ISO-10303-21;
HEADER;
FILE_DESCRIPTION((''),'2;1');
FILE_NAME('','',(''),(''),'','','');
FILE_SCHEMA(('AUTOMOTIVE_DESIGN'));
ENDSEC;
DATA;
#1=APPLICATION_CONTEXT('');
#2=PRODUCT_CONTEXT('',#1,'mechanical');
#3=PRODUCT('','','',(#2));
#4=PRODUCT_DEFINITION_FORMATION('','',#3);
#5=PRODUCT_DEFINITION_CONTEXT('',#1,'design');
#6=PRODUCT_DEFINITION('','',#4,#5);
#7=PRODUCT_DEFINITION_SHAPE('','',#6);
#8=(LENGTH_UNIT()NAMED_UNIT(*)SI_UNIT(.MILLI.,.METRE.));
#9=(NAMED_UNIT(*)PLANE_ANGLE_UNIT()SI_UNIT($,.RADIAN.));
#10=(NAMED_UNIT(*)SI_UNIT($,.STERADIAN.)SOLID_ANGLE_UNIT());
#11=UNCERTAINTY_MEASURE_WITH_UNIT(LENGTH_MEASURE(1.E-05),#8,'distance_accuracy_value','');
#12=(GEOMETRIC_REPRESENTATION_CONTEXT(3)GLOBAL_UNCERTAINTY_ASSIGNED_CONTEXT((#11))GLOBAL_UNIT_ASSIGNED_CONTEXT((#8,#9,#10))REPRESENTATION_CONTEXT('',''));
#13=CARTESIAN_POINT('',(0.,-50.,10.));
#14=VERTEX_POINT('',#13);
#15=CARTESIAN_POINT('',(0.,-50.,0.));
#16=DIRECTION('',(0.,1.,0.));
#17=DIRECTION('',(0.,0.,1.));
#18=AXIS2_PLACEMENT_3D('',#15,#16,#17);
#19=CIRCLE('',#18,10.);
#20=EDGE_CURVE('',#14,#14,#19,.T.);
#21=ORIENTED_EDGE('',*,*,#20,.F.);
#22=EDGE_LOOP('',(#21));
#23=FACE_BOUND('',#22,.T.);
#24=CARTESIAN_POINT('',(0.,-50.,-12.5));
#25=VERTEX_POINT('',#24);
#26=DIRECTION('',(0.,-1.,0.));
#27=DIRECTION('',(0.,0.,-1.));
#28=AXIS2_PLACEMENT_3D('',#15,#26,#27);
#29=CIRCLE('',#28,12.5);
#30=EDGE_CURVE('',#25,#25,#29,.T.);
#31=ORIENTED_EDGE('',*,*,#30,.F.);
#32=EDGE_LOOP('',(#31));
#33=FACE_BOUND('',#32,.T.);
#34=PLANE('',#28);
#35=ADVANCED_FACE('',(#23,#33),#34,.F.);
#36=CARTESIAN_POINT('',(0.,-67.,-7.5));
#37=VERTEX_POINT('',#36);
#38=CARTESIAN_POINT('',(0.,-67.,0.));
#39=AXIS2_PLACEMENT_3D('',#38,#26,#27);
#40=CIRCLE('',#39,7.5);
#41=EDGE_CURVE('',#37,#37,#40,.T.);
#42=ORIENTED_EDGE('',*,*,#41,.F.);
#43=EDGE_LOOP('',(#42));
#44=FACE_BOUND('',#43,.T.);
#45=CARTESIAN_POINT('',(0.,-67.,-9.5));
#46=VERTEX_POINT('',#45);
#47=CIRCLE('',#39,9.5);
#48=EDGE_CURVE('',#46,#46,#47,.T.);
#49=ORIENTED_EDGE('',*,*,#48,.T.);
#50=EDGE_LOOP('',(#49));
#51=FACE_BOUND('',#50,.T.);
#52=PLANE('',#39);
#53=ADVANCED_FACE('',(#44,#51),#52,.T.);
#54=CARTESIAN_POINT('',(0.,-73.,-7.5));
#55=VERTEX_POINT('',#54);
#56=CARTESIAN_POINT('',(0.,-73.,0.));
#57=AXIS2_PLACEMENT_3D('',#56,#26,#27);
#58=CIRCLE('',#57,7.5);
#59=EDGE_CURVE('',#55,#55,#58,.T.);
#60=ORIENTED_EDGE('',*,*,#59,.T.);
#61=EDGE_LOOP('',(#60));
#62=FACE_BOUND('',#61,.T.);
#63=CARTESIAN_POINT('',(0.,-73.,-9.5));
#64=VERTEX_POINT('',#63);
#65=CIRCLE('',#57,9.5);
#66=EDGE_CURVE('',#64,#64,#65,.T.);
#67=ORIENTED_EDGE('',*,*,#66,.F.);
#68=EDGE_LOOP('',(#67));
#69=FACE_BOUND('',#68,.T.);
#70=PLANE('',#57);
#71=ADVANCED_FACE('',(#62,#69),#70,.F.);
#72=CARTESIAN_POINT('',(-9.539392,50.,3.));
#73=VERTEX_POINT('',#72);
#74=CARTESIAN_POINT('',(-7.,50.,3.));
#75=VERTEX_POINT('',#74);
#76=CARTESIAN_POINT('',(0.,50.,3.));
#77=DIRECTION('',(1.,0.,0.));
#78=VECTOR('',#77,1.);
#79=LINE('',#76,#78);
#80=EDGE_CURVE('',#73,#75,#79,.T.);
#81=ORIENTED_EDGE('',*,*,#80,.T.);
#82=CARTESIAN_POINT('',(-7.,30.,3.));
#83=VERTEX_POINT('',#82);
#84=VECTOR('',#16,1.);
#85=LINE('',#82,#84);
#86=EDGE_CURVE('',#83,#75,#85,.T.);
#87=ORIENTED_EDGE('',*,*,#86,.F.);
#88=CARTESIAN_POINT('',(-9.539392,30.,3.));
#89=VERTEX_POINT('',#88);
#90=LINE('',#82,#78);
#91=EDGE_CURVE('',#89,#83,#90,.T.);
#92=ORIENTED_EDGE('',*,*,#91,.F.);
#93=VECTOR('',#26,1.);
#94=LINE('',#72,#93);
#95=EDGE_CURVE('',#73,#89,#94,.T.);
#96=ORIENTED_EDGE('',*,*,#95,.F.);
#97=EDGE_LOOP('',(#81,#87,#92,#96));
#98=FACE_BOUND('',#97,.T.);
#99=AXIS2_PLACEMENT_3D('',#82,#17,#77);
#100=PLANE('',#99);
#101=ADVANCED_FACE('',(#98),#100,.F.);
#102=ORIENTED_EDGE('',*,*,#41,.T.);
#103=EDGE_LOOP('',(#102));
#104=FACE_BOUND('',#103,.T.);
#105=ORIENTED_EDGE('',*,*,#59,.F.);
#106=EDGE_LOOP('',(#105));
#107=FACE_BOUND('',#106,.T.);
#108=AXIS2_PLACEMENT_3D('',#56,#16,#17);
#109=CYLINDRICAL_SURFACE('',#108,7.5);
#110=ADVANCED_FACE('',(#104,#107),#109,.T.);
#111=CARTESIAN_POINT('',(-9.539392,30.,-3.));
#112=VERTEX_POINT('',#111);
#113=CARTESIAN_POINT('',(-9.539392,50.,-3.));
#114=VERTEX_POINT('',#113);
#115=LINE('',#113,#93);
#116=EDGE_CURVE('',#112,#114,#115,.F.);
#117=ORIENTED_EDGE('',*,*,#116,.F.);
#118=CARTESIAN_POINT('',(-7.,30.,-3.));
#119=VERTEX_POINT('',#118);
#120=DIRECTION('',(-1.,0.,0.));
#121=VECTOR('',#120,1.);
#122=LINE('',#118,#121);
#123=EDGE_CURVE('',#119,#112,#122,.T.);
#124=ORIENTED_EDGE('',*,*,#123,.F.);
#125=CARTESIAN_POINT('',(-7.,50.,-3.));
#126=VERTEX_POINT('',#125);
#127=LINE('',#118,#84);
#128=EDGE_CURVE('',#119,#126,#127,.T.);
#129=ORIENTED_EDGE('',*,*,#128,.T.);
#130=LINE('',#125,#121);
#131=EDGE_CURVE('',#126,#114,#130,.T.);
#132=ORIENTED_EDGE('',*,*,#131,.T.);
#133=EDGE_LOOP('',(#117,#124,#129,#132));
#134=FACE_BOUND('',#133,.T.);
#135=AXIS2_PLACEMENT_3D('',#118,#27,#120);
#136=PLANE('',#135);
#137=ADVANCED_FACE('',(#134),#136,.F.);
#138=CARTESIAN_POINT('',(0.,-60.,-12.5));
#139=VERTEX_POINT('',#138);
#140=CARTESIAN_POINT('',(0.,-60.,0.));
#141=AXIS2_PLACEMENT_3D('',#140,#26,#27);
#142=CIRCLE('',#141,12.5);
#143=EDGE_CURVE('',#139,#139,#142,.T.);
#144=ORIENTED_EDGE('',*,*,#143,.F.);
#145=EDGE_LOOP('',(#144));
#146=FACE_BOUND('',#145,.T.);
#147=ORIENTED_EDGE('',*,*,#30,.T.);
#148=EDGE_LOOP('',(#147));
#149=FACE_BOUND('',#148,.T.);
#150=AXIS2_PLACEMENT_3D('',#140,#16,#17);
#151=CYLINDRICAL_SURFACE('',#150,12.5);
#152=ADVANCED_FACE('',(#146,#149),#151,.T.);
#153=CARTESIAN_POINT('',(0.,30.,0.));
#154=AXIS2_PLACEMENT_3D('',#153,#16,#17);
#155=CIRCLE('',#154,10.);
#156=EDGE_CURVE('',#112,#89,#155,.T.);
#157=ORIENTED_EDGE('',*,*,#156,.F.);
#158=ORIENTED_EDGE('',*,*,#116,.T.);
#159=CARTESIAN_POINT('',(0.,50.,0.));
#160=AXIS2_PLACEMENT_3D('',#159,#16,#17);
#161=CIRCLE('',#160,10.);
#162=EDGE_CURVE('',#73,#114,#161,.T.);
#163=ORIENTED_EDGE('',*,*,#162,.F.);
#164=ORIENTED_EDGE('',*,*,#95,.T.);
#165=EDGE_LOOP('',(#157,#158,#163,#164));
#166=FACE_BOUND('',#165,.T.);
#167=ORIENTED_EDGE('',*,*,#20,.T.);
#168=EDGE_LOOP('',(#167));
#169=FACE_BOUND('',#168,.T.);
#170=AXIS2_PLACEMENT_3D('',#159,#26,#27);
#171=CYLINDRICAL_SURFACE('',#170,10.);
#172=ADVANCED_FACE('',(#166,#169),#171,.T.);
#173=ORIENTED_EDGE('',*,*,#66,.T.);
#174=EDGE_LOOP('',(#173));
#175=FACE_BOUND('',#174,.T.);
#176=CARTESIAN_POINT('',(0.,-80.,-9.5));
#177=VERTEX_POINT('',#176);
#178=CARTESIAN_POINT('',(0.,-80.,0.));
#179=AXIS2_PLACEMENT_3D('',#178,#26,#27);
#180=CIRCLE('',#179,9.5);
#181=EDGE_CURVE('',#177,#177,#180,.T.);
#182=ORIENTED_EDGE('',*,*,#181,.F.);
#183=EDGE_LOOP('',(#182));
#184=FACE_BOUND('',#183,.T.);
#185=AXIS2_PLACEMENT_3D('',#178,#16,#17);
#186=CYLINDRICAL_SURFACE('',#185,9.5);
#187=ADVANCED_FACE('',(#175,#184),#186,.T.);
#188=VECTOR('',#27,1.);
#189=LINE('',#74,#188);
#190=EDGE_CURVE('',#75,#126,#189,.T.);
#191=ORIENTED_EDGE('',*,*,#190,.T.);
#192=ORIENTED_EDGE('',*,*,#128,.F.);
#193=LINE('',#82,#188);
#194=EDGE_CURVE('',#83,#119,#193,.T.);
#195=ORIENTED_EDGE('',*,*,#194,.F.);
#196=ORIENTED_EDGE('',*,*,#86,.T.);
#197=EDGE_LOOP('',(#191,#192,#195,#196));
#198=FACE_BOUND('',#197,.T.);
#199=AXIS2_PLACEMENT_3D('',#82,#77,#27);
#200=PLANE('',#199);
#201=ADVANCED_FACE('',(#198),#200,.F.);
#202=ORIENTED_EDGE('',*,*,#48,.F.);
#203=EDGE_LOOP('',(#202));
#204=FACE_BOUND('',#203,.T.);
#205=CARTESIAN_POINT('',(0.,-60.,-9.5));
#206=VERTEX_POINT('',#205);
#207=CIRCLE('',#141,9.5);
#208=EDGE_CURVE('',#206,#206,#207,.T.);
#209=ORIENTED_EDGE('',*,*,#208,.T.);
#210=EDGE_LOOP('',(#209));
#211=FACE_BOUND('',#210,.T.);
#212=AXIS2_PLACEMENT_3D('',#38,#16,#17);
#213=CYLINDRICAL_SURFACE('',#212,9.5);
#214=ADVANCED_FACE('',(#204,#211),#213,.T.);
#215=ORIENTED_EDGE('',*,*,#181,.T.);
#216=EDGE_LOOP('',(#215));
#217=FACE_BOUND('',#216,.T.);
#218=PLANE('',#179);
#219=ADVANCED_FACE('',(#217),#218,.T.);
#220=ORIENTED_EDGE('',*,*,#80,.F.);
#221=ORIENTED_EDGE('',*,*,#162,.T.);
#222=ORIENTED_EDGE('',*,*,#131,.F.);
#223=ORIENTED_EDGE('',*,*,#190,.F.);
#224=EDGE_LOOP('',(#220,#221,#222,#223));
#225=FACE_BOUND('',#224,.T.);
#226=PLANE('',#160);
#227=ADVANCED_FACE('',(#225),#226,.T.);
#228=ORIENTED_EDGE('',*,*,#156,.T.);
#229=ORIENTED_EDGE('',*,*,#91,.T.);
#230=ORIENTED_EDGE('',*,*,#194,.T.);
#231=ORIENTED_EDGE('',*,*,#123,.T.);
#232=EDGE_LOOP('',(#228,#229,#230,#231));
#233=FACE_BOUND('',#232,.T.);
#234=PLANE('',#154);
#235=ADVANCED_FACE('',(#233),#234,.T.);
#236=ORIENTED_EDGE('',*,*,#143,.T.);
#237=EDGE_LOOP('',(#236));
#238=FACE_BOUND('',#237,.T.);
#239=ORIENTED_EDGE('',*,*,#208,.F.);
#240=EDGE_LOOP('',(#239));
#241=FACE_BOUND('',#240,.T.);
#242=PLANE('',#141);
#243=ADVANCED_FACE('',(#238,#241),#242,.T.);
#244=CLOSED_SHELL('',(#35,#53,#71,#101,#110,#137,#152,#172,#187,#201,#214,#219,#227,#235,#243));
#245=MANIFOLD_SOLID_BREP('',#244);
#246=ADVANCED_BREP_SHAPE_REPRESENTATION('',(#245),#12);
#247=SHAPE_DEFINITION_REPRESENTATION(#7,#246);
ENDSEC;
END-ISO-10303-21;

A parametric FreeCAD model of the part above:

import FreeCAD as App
import Part
import Sketcher
Q = App.Units.Quantity

doc = App.newDocument("Part")
body = doc.addObject("PartDesign::Body", "Body")

sketch1 = body.newObject("Sketcher::SketchObject", "Sketch")
sketch1.AttachmentSupport = (doc.getObject("XZ_Plane"), [""])
sketch1.MapMode = "FlatFace"
sketch1.addGeometry(Part.Circle(App.Vector(0, 0, 0), App.Vector(0, 0, 1), 10), False)
sketch1.addConstraint([
    Sketcher.Constraint("Coincident", 0, 3, -1, 1),
    Sketcher.Constraint("Diameter", 0, Q("20 mm")),
])
pad1 = body.newObject("PartDesign::Pad", "Pad")
pad1.Profile = sketch1
pad1.Length = 100
pad1.Midplane = True

sketch2 = body.newObject("Sketcher::SketchObject", "Sketch001")
sketch2.AttachmentSupport = (doc.getObject("XZ_Plane"), [""])
sketch2.MapMode = "FlatFace"
sketch2.AttachmentOffset = App.Placement(App.Vector(0, 0, 50), App.Rotation())
sketch2.addGeometry(Part.Circle(App.Vector(0, 0, 0), App.Vector(0, 0, 1), 12), False)
sketch2.addConstraint([
    Sketcher.Constraint("Coincident", 0, 3, -1, 1),
    Sketcher.Constraint("Diameter", 0, Q("25 mm")),
])
pad2 = body.newObject("PartDesign::Pad", "Pad001")
pad2.Profile = sketch2
pad2.Length = 10

sketch3 = body.newObject("Sketcher::SketchObject", "Sketch002")
sketch3.AttachmentSupport = (doc.getObject("XZ_Plane"), [""])
sketch3.MapMode = "FlatFace"
sketch3.AttachmentOffset = App.Placement(App.Vector(0, 0, 60), App.Rotation())
sketch3.addGeometry(Part.Circle(App.Vector(0, 0, 0), App.Vector(0, 0, 1), 10), False)
sketch3.addConstraint([
    Sketcher.Constraint("Coincident", 0, 3, -1, 1),
    Sketcher.Constraint("Diameter", 0, Q("19 mm")),
])
pad3 = body.newObject("PartDesign::Pad", "Pad002")
pad3.Profile = sketch3
pad3.Length = 7

sketch4 = body.newObject("Sketcher::SketchObject", "Sketch003")
sketch4.AttachmentSupport = (doc.getObject("XZ_Plane"), [""])
sketch4.MapMode = "FlatFace"
sketch4.AttachmentOffset = App.Placement(App.Vector(0, 0, 67), App.Rotation())
sketch4.addGeometry(Part.Circle(App.Vector(0, 0, 0), App.Vector(0, 0, 1), 8), False)
sketch4.addConstraint([
    Sketcher.Constraint("Coincident", 0, 3, -1, 1),
    Sketcher.Constraint("Diameter", 0, Q("15 mm")),
])
pad4 = body.newObject("PartDesign::Pad", "Pad003")
pad4.Profile = sketch4
pad4.Length = 6

sketch5 = body.newObject("Sketcher::SketchObject", "Sketch004")
sketch5.AttachmentSupport = (doc.getObject("XZ_Plane"), [""])
sketch5.MapMode = "FlatFace"
sketch5.AttachmentOffset = App.Placement(App.Vector(0, 0, 73), App.Rotation())
sketch5.addGeometry(Part.Circle(App.Vector(0, 0, 0), App.Vector(0, 0, 1), 10), False)
sketch5.addConstraint([
    Sketcher.Constraint("Coincident", 0, 3, -1, 1),
    Sketcher.Constraint("Diameter", 0, Q("19 mm")),
])
pad5 = body.newObject("PartDesign::Pad", "Pad004")
pad5.Profile = sketch5
pad5.Length = 7

sketch6 = body.newObject("Sketcher::SketchObject", "Sketch005")
sketch6.AttachmentSupport = (doc.getObject("XZ_Plane"), [""])
sketch6.MapMode = "FlatFace"
sketch6.AttachmentOffset = App.Placement(App.Vector(0, 0, -50), App.Rotation())
sketch6.addGeometry([
    Part.LineSegment(App.Vector(-13, -3, 0), App.Vector(-13, 3, 0)),
    Part.LineSegment(App.Vector(-13, 3, 0), App.Vector(-7, 3, 0)),
    Part.LineSegment(App.Vector(-7, 3, 0), App.Vector(-7, -3, 0)),
    Part.LineSegment(App.Vector(-7, -3, 0), App.Vector(-13, -3, 0)),
], False)
sketch6.addConstraint([
    Sketcher.Constraint("Coincident", 0, 2, 1, 1),
    Sketcher.Constraint("Coincident", 1, 2, 2, 1),
    Sketcher.Constraint("Coincident", 2, 2, 3, 1),
    Sketcher.Constraint("Coincident", 3, 2, 0, 1),
    Sketcher.Constraint("Vertical", 0),
    Sketcher.Constraint("Horizontal", 1),
    Sketcher.Constraint("Vertical", 2),
    Sketcher.Constraint("Horizontal", 3),
    Sketcher.Constraint("Equal", 3, 0),
    Sketcher.Constraint("DistanceX", 1, 1, 1, 2, Q("6 mm")),
    Sketcher.Constraint("DistanceX", 0, 2, -1, 1, Q("13 mm")),
    Sketcher.Constraint("DistanceY", -1, 1, 0, 2, Q("3 mm")),
])
pocket1 = body.newObject("PartDesign::Pocket", "Pocket")
pocket1.Profile = sketch6
pocket1.Length = 20
pocket1.Reversed = True

doc.recompute()
